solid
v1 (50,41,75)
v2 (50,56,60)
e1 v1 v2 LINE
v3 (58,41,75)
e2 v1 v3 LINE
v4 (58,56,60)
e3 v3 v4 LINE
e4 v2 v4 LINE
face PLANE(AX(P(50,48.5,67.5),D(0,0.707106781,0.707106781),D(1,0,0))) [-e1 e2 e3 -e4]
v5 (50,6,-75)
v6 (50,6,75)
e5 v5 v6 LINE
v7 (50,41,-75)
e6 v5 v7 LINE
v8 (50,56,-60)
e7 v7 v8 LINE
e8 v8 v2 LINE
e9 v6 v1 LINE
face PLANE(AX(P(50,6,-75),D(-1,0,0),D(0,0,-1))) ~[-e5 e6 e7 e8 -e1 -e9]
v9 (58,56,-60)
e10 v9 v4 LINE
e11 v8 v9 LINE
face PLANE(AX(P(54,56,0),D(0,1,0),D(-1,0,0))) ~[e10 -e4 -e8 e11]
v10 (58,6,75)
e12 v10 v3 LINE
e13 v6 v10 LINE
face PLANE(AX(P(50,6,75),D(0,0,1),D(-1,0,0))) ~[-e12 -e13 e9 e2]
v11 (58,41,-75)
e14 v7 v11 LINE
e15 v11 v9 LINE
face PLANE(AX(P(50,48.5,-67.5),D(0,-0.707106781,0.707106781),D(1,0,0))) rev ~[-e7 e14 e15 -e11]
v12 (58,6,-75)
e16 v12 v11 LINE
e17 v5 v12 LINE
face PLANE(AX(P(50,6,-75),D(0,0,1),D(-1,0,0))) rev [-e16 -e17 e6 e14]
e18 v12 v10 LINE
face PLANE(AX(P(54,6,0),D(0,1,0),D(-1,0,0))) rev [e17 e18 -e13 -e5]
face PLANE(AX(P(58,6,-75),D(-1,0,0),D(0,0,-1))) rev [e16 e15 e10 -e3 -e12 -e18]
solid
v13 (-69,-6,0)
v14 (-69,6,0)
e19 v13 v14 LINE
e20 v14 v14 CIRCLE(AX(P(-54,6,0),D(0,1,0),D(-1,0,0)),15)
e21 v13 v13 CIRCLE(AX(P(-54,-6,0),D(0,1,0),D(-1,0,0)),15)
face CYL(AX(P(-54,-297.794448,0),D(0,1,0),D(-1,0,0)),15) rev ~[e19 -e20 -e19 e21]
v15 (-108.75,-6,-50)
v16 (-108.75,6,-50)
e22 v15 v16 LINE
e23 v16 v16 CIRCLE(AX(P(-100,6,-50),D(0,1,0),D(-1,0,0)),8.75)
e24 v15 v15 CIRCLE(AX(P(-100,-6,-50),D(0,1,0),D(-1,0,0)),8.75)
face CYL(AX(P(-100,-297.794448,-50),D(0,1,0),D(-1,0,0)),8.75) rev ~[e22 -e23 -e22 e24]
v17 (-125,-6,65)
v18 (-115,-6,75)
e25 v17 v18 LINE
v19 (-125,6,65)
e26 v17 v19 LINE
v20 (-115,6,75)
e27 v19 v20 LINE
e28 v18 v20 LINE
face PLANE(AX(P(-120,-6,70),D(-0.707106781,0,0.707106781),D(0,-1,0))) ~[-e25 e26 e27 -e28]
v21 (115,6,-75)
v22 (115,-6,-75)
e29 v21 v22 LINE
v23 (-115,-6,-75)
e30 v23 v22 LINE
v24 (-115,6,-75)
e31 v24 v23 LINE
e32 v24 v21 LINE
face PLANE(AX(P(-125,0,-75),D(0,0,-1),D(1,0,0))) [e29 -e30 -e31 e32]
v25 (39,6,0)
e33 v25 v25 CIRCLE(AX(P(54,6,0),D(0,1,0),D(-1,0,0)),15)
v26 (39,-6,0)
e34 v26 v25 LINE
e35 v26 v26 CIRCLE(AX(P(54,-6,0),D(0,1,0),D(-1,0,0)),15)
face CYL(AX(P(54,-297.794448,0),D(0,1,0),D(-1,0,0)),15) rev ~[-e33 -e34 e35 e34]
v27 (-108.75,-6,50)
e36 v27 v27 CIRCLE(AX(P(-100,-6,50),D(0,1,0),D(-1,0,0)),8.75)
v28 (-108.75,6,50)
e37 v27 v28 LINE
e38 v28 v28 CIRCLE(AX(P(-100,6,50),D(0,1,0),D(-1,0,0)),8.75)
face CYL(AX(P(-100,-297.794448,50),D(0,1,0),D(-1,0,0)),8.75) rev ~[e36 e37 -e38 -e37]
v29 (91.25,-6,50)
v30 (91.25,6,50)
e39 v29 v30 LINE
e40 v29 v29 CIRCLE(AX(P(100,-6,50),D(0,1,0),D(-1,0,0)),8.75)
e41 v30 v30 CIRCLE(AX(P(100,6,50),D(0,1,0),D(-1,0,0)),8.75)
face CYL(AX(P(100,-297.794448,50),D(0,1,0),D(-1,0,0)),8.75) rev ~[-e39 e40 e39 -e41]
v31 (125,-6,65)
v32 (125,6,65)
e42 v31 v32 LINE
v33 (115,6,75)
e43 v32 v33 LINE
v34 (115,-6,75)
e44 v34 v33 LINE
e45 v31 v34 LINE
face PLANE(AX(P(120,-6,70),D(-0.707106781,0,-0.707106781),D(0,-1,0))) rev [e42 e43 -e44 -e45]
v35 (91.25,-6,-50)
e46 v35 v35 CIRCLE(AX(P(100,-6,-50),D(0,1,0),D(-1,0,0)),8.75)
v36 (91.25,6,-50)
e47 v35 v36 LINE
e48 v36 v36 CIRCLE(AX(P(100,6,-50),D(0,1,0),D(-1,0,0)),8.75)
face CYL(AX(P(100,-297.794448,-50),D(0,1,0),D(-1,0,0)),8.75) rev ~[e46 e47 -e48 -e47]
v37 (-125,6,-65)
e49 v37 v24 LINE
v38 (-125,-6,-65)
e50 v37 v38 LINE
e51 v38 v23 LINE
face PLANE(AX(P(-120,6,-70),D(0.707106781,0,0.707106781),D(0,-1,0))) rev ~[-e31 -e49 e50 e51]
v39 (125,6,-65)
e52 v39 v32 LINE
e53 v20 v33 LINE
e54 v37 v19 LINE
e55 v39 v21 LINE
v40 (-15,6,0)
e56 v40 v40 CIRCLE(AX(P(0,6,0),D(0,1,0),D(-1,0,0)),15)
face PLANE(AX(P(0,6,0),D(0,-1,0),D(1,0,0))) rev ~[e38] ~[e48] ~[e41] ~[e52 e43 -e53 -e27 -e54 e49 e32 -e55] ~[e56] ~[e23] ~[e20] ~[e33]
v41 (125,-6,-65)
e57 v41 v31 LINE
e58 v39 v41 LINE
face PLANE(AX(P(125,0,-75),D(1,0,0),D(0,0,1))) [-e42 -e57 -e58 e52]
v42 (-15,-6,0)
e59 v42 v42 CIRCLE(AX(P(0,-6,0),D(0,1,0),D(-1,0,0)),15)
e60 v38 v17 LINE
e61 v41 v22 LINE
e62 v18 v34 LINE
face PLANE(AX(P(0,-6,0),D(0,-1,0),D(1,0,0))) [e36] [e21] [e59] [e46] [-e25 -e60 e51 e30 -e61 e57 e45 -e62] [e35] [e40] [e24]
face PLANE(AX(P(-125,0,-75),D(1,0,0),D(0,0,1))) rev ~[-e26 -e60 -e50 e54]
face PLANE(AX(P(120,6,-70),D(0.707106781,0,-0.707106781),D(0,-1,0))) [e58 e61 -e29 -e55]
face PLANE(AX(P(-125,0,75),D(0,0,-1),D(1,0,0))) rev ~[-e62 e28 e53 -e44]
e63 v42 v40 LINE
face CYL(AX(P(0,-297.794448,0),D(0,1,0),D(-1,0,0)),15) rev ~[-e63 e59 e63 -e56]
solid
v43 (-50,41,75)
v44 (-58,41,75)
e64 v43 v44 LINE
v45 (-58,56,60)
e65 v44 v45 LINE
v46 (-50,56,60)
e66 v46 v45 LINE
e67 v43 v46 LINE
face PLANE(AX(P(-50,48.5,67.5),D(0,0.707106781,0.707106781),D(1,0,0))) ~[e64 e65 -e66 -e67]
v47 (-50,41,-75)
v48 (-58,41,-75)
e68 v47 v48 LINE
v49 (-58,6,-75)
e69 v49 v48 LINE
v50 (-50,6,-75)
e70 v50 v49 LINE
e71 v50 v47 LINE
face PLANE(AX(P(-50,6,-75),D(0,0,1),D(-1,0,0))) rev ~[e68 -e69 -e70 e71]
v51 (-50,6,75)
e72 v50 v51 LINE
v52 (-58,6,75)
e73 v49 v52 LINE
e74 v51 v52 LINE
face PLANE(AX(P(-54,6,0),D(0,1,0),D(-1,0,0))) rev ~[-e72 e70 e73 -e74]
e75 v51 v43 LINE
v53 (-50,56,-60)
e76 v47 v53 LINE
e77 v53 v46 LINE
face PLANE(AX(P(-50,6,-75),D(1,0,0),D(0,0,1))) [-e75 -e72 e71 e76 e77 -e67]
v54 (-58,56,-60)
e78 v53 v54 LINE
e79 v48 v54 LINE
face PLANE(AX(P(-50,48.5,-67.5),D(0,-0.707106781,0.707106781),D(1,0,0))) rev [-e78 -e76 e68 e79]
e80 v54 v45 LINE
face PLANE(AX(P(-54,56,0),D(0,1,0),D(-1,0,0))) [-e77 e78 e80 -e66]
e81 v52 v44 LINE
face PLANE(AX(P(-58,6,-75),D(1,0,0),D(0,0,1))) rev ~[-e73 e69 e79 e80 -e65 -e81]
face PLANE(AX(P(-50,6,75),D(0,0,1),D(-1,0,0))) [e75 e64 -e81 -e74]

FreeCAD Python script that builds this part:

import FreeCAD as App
import Part
import Sketcher


def edges_at(feature, points):
    """Names of the edges that pass closest to the given points."""
    edges = feature.Shape.Edges
    near = lambda p: min(range(len(edges)), key=lambda i: edges[i].distToShape(Part.Vertex(*p))[0])
    return sorted({f"Edge{near(p) + 1}" for p in points})


def add_polygon(sketch, points):
    """Adds a closed chain of lines whose ends are joined by coincident constraints."""
    first, n = sketch.GeometryCount, len(points)
    for a, b in zip(points, points[1:] + points[:1]):
        sketch.addGeometry(Part.LineSegment(App.Vector(*a, 0), App.Vector(*b, 0)), False)
    for i in range(n):
        sketch.addConstraint(Sketcher.Constraint("Coincident", first + i, 2, first + (i + 1) % n, 1))

doc = App.newDocument("Part")
body = doc.addObject("PartDesign::Body", "Body")

sketch1 = body.newObject("Sketcher::SketchObject", "Sketch")
sketch1.AttachmentSupport = (doc.getObject("XZ_Plane"), [""])
sketch1.MapMode = "FlatFace"
add_polygon(sketch1, [(-125, 75), (-125, -75), (125, -75), (125, 75)])
sketch1.addConstraint([
    Sketcher.Constraint("Vertical", 0),
    Sketcher.Constraint("Horizontal", 1),
    Sketcher.Constraint("Vertical", 2),
    Sketcher.Constraint("Horizontal", 3),
    Sketcher.Constraint("Symmetric", 0, 2, 2, 2, -1, 1),
    Sketcher.Constraint("DistanceX", 1, 1, 1, 2, 250.0),
    Sketcher.Constraint("DistanceY", 0, 2, 0, 1, 150.0),
])
pad1 = body.newObject("PartDesign::Pad", "Pad")
pad1.Profile = sketch1
pad1.Length = 12
pad1.Midplane = True
doc.recompute()

chamfer = body.newObject("PartDesign::Chamfer", "Chamfer")
chamfer.Base = (pad1, edges_at(pad1, [
    (125, 0, -75),
    (-125, 0, 75),
    (125, 0, 75),
    (-125, 0, -75),
]))
chamfer.Size = 10

sketch2 = body.newObject("Sketcher::SketchObject", "Sketch001")
sketch2.AttachmentSupport = (doc.getObject("XZ_Plane"), [""])
sketch2.MapMode = "FlatFace"
sketch2.AttachmentOffset = App.Placement(App.Vector(0, 0, 6), App.Rotation())
sketch2.addGeometry([
    Part.Circle(App.Vector(-100, 50, 0), App.Vector(0, 0, 1), 9),
    Part.Circle(App.Vector(-100, -50, 0), App.Vector(0, 0, 1), 9),
    Part.Circle(App.Vector(100, -50, 0), App.Vector(0, 0, 1), 9),
    Part.Circle(App.Vector(100, 50, 0), App.Vector(0, 0, 1), 9),
], False)
sketch2.addConstraint([
    Sketcher.Constraint("Equal", 0, 1),
    Sketcher.Constraint("Equal", 1, 2),
    Sketcher.Constraint("Equal", 2, 3),
    Sketcher.Constraint("Symmetric", 0, 3, 2, 3, -1, 1),
    Sketcher.Constraint("Symmetric", 1, 3, 3, 3, -1, 1),
    Sketcher.Constraint("Symmetric", 1, 3, 2, 3, -2),
    Sketcher.Constraint("Diameter", 0, 17.5),
    Sketcher.Constraint("DistanceX", 0, 3, -1, 1, 100.0),
    Sketcher.Constraint("DistanceY", -1, 1, 0, 3, 50.0),
])
doc.recompute()
hole = body.newObject("PartDesign::Hole", "Hole")
hole.Profile = sketch2
hole.ThreadType = "None"
hole.Diameter = 17.5
hole.DepthType = "ThroughAll"

sketch3 = body.newObject("Sketcher::SketchObject", "Sketch002")
sketch3.AttachmentSupport = (doc.getObject("XZ_Plane"), [""])
sketch3.MapMode = "FlatFace"
sketch3.AttachmentOffset = App.Placement(App.Vector(0, 0, 6), App.Rotation())
sketch3.addGeometry([
    Part.Circle(App.Vector(0, 0, 0), App.Vector(0, 0, 1), 15),
    Part.Circle(App.Vector(-54, 0, 0), App.Vector(0, 0, 1), 15),
    Part.Circle(App.Vector(54, 0, 0), App.Vector(0, 0, 1), 15),
], False)
sketch3.addConstraint([
    Sketcher.Constraint("Coincident", 0, 3, -1, 1),
    Sketcher.Constraint("Equal", 0, 1),
    Sketcher.Constraint("Equal", 1, 2),
    Sketcher.Constraint("Symmetric", 1, 3, 2, 3, -1, 1),
    Sketcher.Constraint("PointOnObject", 1, 3, -1),
    Sketcher.Constraint("Diameter", 0, 30.0),
    Sketcher.Constraint("DistanceX", 1, 3, -1, 1, 54.0),
])
doc.recompute()
hole2 = body.newObject("PartDesign::Hole", "Hole001")
hole2.Profile = sketch3
hole2.ThreadType = "None"
hole2.Diameter = 30
hole2.DepthType = "ThroughAll"
body2 = doc.addObject("PartDesign::Body", "Body001")

sketch4 = body2.newObject("Sketcher::SketchObject", "Sketch003")
sketch4.AttachmentSupport = (doc.getObject("XZ_Plane001"), [""])
sketch4.MapMode = "FlatFace"
sketch4.AttachmentOffset = App.Placement(App.Vector(0, 0, -6), App.Rotation())
add_polygon(sketch4, [(-50, 75), (-50, -75), (-58, -75), (-58, 75)])
sketch4.addConstraint([
    Sketcher.Constraint("Vertical", 0),
    Sketcher.Constraint("Horizontal", 1),
    Sketcher.Constraint("Vertical", 2),
    Sketcher.Constraint("Horizontal", 3),
    Sketcher.Constraint("DistanceX", 1, 2, 1, 1, 8.0),
    Sketcher.Constraint("DistanceY", 0, 2, 0, 1, 150.0),
    Sketcher.Constraint("DistanceX", 0, 2, -1, 1, 50.0),
    Sketcher.Constraint("DistanceY", 0, 2, -1, 1, 75.0),
])
pad2 = body2.newObject("PartDesign::Pad", "Pad001")
pad2.Profile = sketch4
pad2.Length = 50
pad2.Reversed = True
doc.recompute()

chamfer2 = body2.newObject("PartDesign::Chamfer", "Chamfer001")
chamfer2.Base = (pad2, edges_at(pad2, [(-54, 56, -75), (-54, 56, 75)]))
chamfer2.Size = 15
body3 = doc.addObject("PartDesign::Body", "Body002")
doc.recompute()

mirroring = doc.addObject("Part::Mirroring", "Mirroring")
mirroring.Source = body2
mirroring.Base = App.Vector(0, 0, 0)
mirroring.Normal = App.Vector(1, 0, 0)
body3.BaseFeature = mirroring
doc.recompute()
mirroring.Visibility = False

doc.recompute()
